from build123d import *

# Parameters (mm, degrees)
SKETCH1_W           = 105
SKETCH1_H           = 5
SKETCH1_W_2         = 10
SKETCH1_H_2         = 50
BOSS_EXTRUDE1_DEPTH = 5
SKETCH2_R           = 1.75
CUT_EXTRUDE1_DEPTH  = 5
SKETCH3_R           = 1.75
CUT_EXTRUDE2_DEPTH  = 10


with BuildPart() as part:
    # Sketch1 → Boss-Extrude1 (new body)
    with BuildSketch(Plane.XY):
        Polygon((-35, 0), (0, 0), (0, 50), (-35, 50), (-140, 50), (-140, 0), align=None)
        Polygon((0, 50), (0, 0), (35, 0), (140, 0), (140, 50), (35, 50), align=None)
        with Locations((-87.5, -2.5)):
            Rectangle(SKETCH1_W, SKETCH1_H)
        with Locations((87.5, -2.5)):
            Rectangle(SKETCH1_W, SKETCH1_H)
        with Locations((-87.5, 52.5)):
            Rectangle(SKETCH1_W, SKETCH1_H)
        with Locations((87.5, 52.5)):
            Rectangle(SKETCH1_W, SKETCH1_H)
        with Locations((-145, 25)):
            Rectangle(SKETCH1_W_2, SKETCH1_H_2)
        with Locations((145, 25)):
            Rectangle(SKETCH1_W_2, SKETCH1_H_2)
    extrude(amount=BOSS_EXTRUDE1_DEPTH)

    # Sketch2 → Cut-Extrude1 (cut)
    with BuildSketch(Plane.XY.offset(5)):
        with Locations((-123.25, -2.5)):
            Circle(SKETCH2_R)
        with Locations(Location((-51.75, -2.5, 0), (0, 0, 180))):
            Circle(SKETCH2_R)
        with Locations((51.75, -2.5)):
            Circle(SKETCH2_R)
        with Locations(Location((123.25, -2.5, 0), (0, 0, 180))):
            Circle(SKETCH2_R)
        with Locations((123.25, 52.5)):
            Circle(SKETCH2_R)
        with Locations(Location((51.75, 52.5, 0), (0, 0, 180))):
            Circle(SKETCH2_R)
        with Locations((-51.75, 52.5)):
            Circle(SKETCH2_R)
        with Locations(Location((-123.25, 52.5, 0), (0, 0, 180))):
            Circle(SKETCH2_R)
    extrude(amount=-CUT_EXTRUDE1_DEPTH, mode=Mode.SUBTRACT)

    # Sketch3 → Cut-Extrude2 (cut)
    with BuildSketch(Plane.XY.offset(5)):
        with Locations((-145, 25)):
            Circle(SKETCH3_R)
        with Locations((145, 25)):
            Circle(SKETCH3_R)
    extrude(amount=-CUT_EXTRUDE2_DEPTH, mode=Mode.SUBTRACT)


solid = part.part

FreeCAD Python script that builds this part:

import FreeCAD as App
import Part
import Sketcher
from FreeCAD import Vector
Q = App.Units.Quantity

doc = App.newDocument("Part")
body = doc.addObject("PartDesign::Body", "Body")

sketch1 = body.newObject("Sketcher::SketchObject", "Sketch")
sketch1.AttachmentSupport = (doc.getObject("XY_Plane"), [""])
sketch1.MapMode = "FlatFace"
sketch1.addGeometry([
    Part.LineSegment(Vector(-140, -5, 0), Vector(-35, -5, 0)),
    Part.LineSegment(Vector(-35, -5, 0), Vector(-35, 0, 0)),
    Part.LineSegment(Vector(-35, 0, 0), Vector(35, 0, 0)),
    Part.LineSegment(Vector(35, 0, 0), Vector(35, -5, 0)),
    Part.LineSegment(Vector(35, -5, 0), Vector(140, -5, 0)),
    Part.LineSegment(Vector(140, -5, 0), Vector(140, 0, 0)),
    Part.LineSegment(Vector(140, 0, 0), Vector(150, 0, 0)),
    Part.LineSegment(Vector(150, 0, 0), Vector(150, 50, 0)),
    Part.LineSegment(Vector(150, 50, 0), Vector(140, 50, 0)),
    Part.LineSegment(Vector(140, 50, 0), Vector(140, 55, 0)),
    Part.LineSegment(Vector(140, 55, 0), Vector(35, 55, 0)),
    Part.LineSegment(Vector(35, 55, 0), Vector(35, 50, 0)),
    Part.LineSegment(Vector(35, 50, 0), Vector(-35, 50, 0)),
    Part.LineSegment(Vector(-35, 50, 0), Vector(-35, 55, 0)),
    Part.LineSegment(Vector(-35, 55, 0), Vector(-140, 55, 0)),
    Part.LineSegment(Vector(-140, 55, 0), Vector(-140, 50, 0)),
    Part.LineSegment(Vector(-140, 50, 0), Vector(-150, 50, 0)),
    Part.LineSegment(Vector(-150, 50, 0), Vector(-150, 0, 0)),
    Part.LineSegment(Vector(-150, 0, 0), Vector(-140, 0, 0)),
    Part.LineSegment(Vector(-140, 0, 0), Vector(-140, -5, 0)),
], False)
sketch1.addConstraint([
    Sketcher.Constraint("Coincident", 0, 2, 1, 1),
    Sketcher.Constraint("Coincident", 1, 2, 2, 1),
    Sketcher.Constraint("Coincident", 2, 2, 3, 1),
    Sketcher.Constraint("Coincident", 3, 2, 4, 1),
    Sketcher.Constraint("Coincident", 4, 2, 5, 1),
    Sketcher.Constraint("Coincident", 5, 2, 6, 1),
    Sketcher.Constraint("Coincident", 6, 2, 7, 1),
    Sketcher.Constraint("Coincident", 7, 2, 8, 1),
    Sketcher.Constraint("Coincident", 8, 2, 9, 1),
    Sketcher.Constraint("Coincident", 9, 2, 10, 1),
    Sketcher.Constraint("Coincident", 10, 2, 11, 1),
    Sketcher.Constraint("Coincident", 11, 2, 12, 1),
    Sketcher.Constraint("Coincident", 12, 2, 13, 1),
    Sketcher.Constraint("Coincident", 13, 2, 14, 1),
    Sketcher.Constraint("Coincident", 14, 2, 15, 1),
    Sketcher.Constraint("Coincident", 15, 2, 16, 1),
    Sketcher.Constraint("Coincident", 16, 2, 17, 1),
    Sketcher.Constraint("Coincident", 17, 2, 18, 1),
    Sketcher.Constraint("Coincident", 18, 2, 19, 1),
    Sketcher.Constraint("Coincident", 19, 2, 0, 1),
    Sketcher.Constraint("Horizontal", 0),
    Sketcher.Constraint("Vertical", 1),
    Sketcher.Constraint("Horizontal", 2),
    Sketcher.Constraint("Vertical", 3),
    Sketcher.Constraint("Horizontal", 4),
    Sketcher.Constraint("Vertical", 5),
    Sketcher.Constraint("Horizontal", 6),
    Sketcher.Constraint("Vertical", 7),
    Sketcher.Constraint("Horizontal", 8),
    Sketcher.Constraint("Vertical", 9),
    Sketcher.Constraint("Horizontal", 10),
    Sketcher.Constraint("Vertical", 11),
    Sketcher.Constraint("Horizontal", 12),
    Sketcher.Constraint("Vertical", 13),
    Sketcher.Constraint("Horizontal", 14),
    Sketcher.Constraint("Vertical", 15),
    Sketcher.Constraint("Horizontal", 16),
    Sketcher.Constraint("Vertical", 17),
    Sketcher.Constraint("Horizontal", 18),
    Sketcher.Constraint("Vertical", 19),
    Sketcher.Constraint("Symmetric", 1, 2, 2, 2, -1, 1),
    Sketcher.Constraint("Symmetric", 6, 2, 17, 2, -1, 1),
    Sketcher.Constraint("Symmetric", 10, 2, 13, 2, -2),
    Sketcher.Constraint("Symmetric", 8, 2, 15, 2, -2),
    Sketcher.Constraint("Symmetric", 5, 2, 18, 2, -2),
    Sketcher.Constraint("Horizontal", 0, 2, 3, 2),
    Sketcher.Constraint("Horizontal", 8, 2, 11, 2),
    Sketcher.Constraint("Vertical", 5, 2, 8, 2),
    Sketcher.Constraint("Vertical", 3, 2, 10, 2),
    Sketcher.Constraint("Equal", 5, 9),
    Sketcher.Constraint("DistanceX", 0, 1, 0, 2, Q("105 mm")),
    Sketcher.Constraint("DistanceX", 2, 1, 2, 2, Q("70 mm")),
    Sketcher.Constraint("DistanceX", 6, 1, 6, 2, Q("10 mm")),
    Sketcher.Constraint("DistanceY", 1, 1, 1, 2, Q("5 mm")),
    Sketcher.Constraint("DistanceY", 7, 1, 7, 2, Q("50 mm")),
])
pad1 = body.newObject("PartDesign::Pad", "Pad")
pad1.Profile = sketch1
pad1.Length = 5

sketch2 = body.newObject("Sketcher::SketchObject", "Sketch001")
sketch2.AttachmentSupport = (doc.getObject("XY_Plane"), [""])
sketch2.MapMode = "FlatFace"
sketch2.AttachmentOffset = App.Placement(Vector(0, 0, 5), App.Rotation())
sketch2.addGeometry([
    Part.Circle(Vector(-123.2, -2.5, 0), Vector(0, 0, 1), 1.8),
    Part.Circle(Vector(-51.8, -2.5, 0), Vector(0, 0, 1), 1.8),
    Part.Circle(Vector(51.8, -2.5, 0), Vector(0, 0, 1), 1.8),
    Part.Circle(Vector(123.2, -2.5, 0), Vector(0, 0, 1), 1.8),
    Part.Circle(Vector(123.2, 52.5, 0), Vector(0, 0, 1), 1.8),
    Part.Circle(Vector(51.8, 52.5, 0), Vector(0, 0, 1), 1.8),
    Part.Circle(Vector(-51.8, 52.5, 0), Vector(0, 0, 1), 1.8),
    Part.Circle(Vector(-123.2, 52.5, 0), Vector(0, 0, 1), 1.8),
], False)
sketch2.addConstraint([
    Sketcher.Constraint("Equal", 0, 1),
    Sketcher.Constraint("Equal", 1, 2),
    Sketcher.Constraint("Equal", 2, 3),
    Sketcher.Constraint("Equal", 3, 4),
    Sketcher.Constraint("Equal", 4, 5),
    Sketcher.Constraint("Equal", 5, 6),
    Sketcher.Constraint("Equal", 6, 7),
    Sketcher.Constraint("Symmetric", 1, 3, 2, 3, -2),
    Sketcher.Constraint("Symmetric", 0, 3, 3, 3, -2),
    Sketcher.Constraint("Symmetric", 5, 3, 6, 3, -2),
    Sketcher.Constraint("Symmetric", 4, 3, 7, 3, -2),
    Sketcher.Constraint("Horizontal", 0, 3, 1, 3),
    Sketcher.Constraint("Horizontal", 4, 3, 5, 3),
    Sketcher.Constraint("Vertical", 3, 3, 4, 3),
    Sketcher.Constraint("Vertical", 2, 3, 5, 3),
    Sketcher.Constraint("Diameter", 0, Q("3.5 mm")),
    Sketcher.Constraint("DistanceX", 0, 3, 2, 3, Q("175 mm")),
    Sketcher.Constraint("DistanceY", 3, 3, 4, 3, Q("55 mm")),
    Sketcher.Constraint("DistanceY", 0, 3, -1, 1, Q("2.5 mm")),
    Sketcher.Constraint("DistanceX", 0, 3, 1, 3, Q("71.5 mm")),
])
pocket1 = body.newObject("PartDesign::Pocket", "Pocket")
pocket1.Profile = sketch2
pocket1.Length = 5

sketch3 = body.newObject("Sketcher::SketchObject", "Sketch002")
sketch3.AttachmentSupport = (doc.getObject("XY_Plane"), [""])
sketch3.MapMode = "FlatFace"
sketch3.AttachmentOffset = App.Placement(Vector(0, 0, 5), App.Rotation())
sketch3.addGeometry([
    Part.Circle(Vector(-145, 25, 0), Vector(0, 0, 1), 1.8),
    Part.Circle(Vector(145, 25, 0), Vector(0, 0, 1), 1.8),
], False)
sketch3.addConstraint([
    Sketcher.Constraint("Equal", 0, 1),
    Sketcher.Constraint("Symmetric", 0, 3, 1, 3, -2),
    Sketcher.Constraint("Diameter", 0, Q("3.5 mm")),
    Sketcher.Constraint("DistanceX", 0, 3, -1, 1, Q("145 mm")),
    Sketcher.Constraint("DistanceY", -1, 1, 0, 3, Q("25 mm")),
])
pocket2 = body.newObject("PartDesign::Pocket", "Pocket001")
pocket2.Profile = sketch3
pocket2.Length = 10

doc.recompute()
